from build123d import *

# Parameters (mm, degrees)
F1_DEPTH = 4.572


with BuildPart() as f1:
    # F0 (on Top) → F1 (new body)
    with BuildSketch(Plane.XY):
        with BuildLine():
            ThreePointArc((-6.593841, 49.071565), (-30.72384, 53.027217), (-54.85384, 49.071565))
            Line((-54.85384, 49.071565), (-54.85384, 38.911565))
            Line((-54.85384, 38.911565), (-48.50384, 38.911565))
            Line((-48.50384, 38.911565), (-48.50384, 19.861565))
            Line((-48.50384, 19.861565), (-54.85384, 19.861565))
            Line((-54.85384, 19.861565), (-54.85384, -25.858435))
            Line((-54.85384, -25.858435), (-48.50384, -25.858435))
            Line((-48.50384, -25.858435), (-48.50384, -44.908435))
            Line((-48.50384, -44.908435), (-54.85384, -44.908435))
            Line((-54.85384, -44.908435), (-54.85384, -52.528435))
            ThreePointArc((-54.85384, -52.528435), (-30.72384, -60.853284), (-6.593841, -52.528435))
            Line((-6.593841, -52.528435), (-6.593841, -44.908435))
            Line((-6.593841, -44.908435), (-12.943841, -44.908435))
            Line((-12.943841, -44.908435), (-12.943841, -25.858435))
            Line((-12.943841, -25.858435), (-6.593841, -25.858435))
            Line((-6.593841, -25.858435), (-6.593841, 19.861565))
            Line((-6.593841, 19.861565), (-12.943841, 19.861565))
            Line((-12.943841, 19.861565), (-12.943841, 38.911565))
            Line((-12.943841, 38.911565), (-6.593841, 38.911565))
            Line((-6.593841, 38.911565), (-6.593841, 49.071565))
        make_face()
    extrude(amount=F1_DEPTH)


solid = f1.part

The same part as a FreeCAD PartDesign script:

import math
import FreeCAD as App
import Part
import Sketcher

V = App.Vector
Q = App.Units.Quantity

doc = App.newDocument("Part")
body = doc.addObject("PartDesign::Body", "Body")

# Sketch on XY plane
sketch1 = body.newObject("Sketcher::SketchObject", "Sketch")
sketch1.AttachmentSupport = (doc.getObject("XY_Plane"), [""])
sketch1.MapMode = "FlatFace"
sketch1.addGeometry(Part.ArcOfCircle(Part.Circle(V(-31, -23, 0), V(0, 0, 1), 76), math.radians(71), math.radians(109)), False)
sketch1.addGeometry(Part.LineSegment(V(-55, 49, 0), V(-55, 39, 0)), False)
sketch1.addGeometry(Part.LineSegment(V(-55, 39, 0), V(-49, 39, 0)), False)
sketch1.addGeometry(Part.LineSegment(V(-49, 39, 0), V(-49, 20, 0)), False)
sketch1.addGeometry(Part.LineSegment(V(-49, 20, 0), V(-55, 20, 0)), False)
sketch1.addGeometry(Part.LineSegment(V(-55, 20, 0), V(-55, -26, 0)), False)
sketch1.addGeometry(Part.LineSegment(V(-55, -26, 0), V(-49, -26, 0)), False)
sketch1.addGeometry(Part.LineSegment(V(-49, -26, 0), V(-49, -45, 0)), False)
sketch1.addGeometry(Part.LineSegment(V(-49, -45, 0), V(-55, -45, 0)), False)
sketch1.addGeometry(Part.LineSegment(V(-55, -45, 0), V(-55, -53, 0)), False)
sketch1.addGeometry(Part.ArcOfCircle(Part.Circle(V(-31, -22, 0), V(0, 0, 1), 39), math.radians(-128), math.radians(-52)), False)
sketch1.addGeometry(Part.LineSegment(V(-7, -53, 0), V(-7, -45, 0)), False)
sketch1.addGeometry(Part.LineSegment(V(-7, -45, 0), V(-13, -45, 0)), False)
sketch1.addGeometry(Part.LineSegment(V(-13, -45, 0), V(-13, -26, 0)), False)
sketch1.addGeometry(Part.LineSegment(V(-13, -26, 0), V(-7, -26, 0)), False)
sketch1.addGeometry(Part.LineSegment(V(-7, -26, 0), V(-7, 20, 0)), False)
sketch1.addGeometry(Part.LineSegment(V(-7, 20, 0), V(-13, 20, 0)), False)
sketch1.addGeometry(Part.LineSegment(V(-13, 20, 0), V(-13, 39, 0)), False)
sketch1.addGeometry(Part.LineSegment(V(-13, 39, 0), V(-7, 39, 0)), False)
sketch1.addGeometry(Part.LineSegment(V(-7, 39, 0), V(-7, 49, 0)), False)
sketch1.addConstraint(Sketcher.Constraint("Coincident", 0, 2, 1, 1))
sketch1.addConstraint(Sketcher.Constraint("Coincident", 1, 2, 2, 1))
sketch1.addConstraint(Sketcher.Constraint("Coincident", 2, 2, 3, 1))
sketch1.addConstraint(Sketcher.Constraint("Coincident", 3, 2, 4, 1))
sketch1.addConstraint(Sketcher.Constraint("Coincident", 4, 2, 5, 1))
sketch1.addConstraint(Sketcher.Constraint("Coincident", 5, 2, 6, 1))
sketch1.addConstraint(Sketcher.Constraint("Coincident", 6, 2, 7, 1))
sketch1.addConstraint(Sketcher.Constraint("Coincident", 7, 2, 8, 1))
sketch1.addConstraint(Sketcher.Constraint("Coincident", 8, 2, 9, 1))
sketch1.addConstraint(Sketcher.Constraint("Coincident", 9, 2, 10, 1))
sketch1.addConstraint(Sketcher.Constraint("Coincident", 10, 2, 11, 1))
sketch1.addConstraint(Sketcher.Constraint("Coincident", 11, 2, 12, 1))
sketch1.addConstraint(Sketcher.Constraint("Coincident", 12, 2, 13, 1))
sketch1.addConstraint(Sketcher.Constraint("Coincident", 13, 2, 14, 1))
sketch1.addConstraint(Sketcher.Constraint("Coincident", 14, 2, 15, 1))
sketch1.addConstraint(Sketcher.Constraint("Coincident", 15, 2, 16, 1))
sketch1.addConstraint(Sketcher.Constraint("Coincident", 16, 2, 17, 1))
sketch1.addConstraint(Sketcher.Constraint("Coincident", 17, 2, 18, 1))
sketch1.addConstraint(Sketcher.Constraint("Coincident", 18, 2, 19, 1))
sketch1.addConstraint(Sketcher.Constraint("Coincident", 19, 2, 0, 1))
sketch1.addConstraint(Sketcher.Constraint("Vertical", 1))
sketch1.addConstraint(Sketcher.Constraint("Horizontal", 2))
sketch1.addConstraint(Sketcher.Constraint("Vertical", 3))
sketch1.addConstraint(Sketcher.Constraint("Horizontal", 4))
sketch1.addConstraint(Sketcher.Constraint("Vertical", 5))
sketch1.addConstraint(Sketcher.Constraint("Horizontal", 6))
sketch1.addConstraint(Sketcher.Constraint("Vertical", 7))
sketch1.addConstraint(Sketcher.Constraint("Horizontal", 8))
sketch1.addConstraint(Sketcher.Constraint("Vertical", 9))
sketch1.addConstraint(Sketcher.Constraint("Vertical", 11))
sketch1.addConstraint(Sketcher.Constraint("Horizontal", 12))
sketch1.addConstraint(Sketcher.Constraint("Vertical", 13))
sketch1.addConstraint(Sketcher.Constraint("Horizontal", 14))
sketch1.addConstraint(Sketcher.Constraint("Vertical", 15))
sketch1.addConstraint(Sketcher.Constraint("Horizontal", 16))
sketch1.addConstraint(Sketcher.Constraint("Vertical", 17))
sketch1.addConstraint(Sketcher.Constraint("Horizontal", 18))
sketch1.addConstraint(Sketcher.Constraint("Vertical", 19))
sketch1.addConstraint(Sketcher.Constraint("Horizontal", 9, 2, 10, 2))
sketch1.addConstraint(Sketcher.Constraint("Horizontal", 8, 2, 11, 2))
sketch1.addConstraint(Sketcher.Constraint("Horizontal", 6, 2, 13, 2))
sketch1.addConstraint(Sketcher.Constraint("Horizontal", 4, 2, 15, 2))
sketch1.addConstraint(Sketcher.Constraint("Horizontal", 2, 2, 17, 2))
sketch1.addConstraint(Sketcher.Constraint("Horizontal", 0, 2, 19, 2))
sketch1.addConstraint(Sketcher.Constraint("Vertical", 0, 3, 10, 3))
sketch1.addConstraint(Sketcher.Constraint("Vertical", 1, 2, 4, 2))
sketch1.addConstraint(Sketcher.Constraint("Vertical", 3, 2, 6, 2))
sketch1.addConstraint(Sketcher.Constraint("Vertical", 5, 2, 8, 2))
sketch1.addConstraint(Sketcher.Constraint("Vertical", 11, 2, 14, 2))
sketch1.addConstraint(Sketcher.Constraint("Vertical", 13, 2, 16, 2))
sketch1.addConstraint(Sketcher.Constraint("Equal", 8, 12))
sketch1.addConstraint(Sketcher.Constraint("Equal", 3, 7))
sketch1.addConstraint(Sketcher.Constraint("DistanceY", 1, 2, 1, 1, Q("0.4 in")))
sketch1.addConstraint(Sketcher.Constraint("DistanceY", 5, 2, 5, 1, Q("1.8 in")))
sketch1.addConstraint(Sketcher.Constraint("DistanceY", 9, 2, 9, 1, Q("0.3 in")))
sketch1.addConstraint(Sketcher.Constraint("DistanceX", 2, 1, 2, 2, Q("0.25 in")))
sketch1.addConstraint(Sketcher.Constraint("DistanceY", 3, 2, 3, 1, Q("0.75 in")))
sketch1.addConstraint(Sketcher.Constraint("DistanceX", 2, 2, 10, 3, Q("0.7 in")))
sketch1.addConstraint(Sketcher.Constraint("Radius", 10, Q("39.133442 mm")))
sketch1.addConstraint(Sketcher.Constraint("DistanceX", 0, 3, -1, 1, Q("1.2096 in")))
sketch1.addConstraint(Sketcher.Constraint("Radius", 0, Q("75.575918 mm")))
sketch1.addConstraint(Sketcher.Constraint("DistanceY", 0, 3, -1, 1, Q("22.548701 mm")))
pad1 = body.newObject("PartDesign::Pad", "Pad")
pad1.Profile = sketch1
pad1.Length = Q("0.18 in")

doc.recompute()
